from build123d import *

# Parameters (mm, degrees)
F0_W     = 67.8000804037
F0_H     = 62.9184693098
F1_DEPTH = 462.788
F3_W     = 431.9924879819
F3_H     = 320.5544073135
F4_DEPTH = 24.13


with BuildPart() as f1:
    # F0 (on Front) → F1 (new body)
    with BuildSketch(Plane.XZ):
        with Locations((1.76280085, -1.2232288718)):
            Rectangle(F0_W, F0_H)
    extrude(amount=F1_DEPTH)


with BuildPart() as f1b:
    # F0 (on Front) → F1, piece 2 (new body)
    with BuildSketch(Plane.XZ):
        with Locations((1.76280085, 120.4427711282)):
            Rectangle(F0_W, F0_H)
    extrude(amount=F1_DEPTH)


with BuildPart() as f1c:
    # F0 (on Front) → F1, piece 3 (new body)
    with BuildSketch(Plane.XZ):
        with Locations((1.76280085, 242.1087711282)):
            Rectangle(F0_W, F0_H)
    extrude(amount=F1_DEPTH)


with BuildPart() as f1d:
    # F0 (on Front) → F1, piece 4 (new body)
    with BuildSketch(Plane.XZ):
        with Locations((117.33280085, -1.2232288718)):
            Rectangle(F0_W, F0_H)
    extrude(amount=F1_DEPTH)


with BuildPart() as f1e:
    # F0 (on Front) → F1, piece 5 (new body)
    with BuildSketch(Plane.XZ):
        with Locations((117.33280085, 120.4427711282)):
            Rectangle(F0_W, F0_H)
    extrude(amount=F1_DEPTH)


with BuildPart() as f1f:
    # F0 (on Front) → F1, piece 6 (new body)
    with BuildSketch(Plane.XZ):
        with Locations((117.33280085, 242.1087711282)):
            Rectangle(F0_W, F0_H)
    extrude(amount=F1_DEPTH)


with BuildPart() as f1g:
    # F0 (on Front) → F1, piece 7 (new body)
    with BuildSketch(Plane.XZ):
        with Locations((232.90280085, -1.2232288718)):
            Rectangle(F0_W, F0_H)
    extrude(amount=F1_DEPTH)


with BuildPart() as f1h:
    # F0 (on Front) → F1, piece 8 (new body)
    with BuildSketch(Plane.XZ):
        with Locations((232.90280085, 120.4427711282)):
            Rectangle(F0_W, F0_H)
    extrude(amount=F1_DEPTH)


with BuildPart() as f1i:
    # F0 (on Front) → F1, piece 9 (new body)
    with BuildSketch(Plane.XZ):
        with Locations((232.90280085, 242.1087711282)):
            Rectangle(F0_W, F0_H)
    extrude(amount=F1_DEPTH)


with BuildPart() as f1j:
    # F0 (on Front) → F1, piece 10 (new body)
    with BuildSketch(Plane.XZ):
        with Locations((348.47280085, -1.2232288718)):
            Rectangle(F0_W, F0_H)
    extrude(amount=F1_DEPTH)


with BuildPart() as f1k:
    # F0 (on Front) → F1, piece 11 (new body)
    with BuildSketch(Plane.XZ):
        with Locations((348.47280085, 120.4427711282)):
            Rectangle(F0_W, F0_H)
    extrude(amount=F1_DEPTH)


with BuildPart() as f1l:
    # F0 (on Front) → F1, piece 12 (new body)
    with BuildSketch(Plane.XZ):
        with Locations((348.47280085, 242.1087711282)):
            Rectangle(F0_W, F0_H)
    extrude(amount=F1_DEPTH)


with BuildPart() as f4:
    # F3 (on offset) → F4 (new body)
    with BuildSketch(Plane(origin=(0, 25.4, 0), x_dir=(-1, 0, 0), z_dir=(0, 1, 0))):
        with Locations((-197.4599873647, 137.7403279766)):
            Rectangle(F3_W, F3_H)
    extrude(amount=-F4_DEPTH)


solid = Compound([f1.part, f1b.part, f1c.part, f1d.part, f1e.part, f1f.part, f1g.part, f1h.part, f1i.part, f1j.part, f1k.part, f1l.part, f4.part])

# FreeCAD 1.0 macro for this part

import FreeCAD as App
import Part
import Sketcher
from FreeCAD import Vector
Q = App.Units.Quantity


def add_polygon(sketch, points):
    """Adds a closed chain of lines whose ends are joined by coincident constraints."""
    first, n = sketch.GeometryCount, len(points)
    for a, b in zip(points, points[1:] + points[:1]):
        sketch.addGeometry(Part.LineSegment(App.Vector(*a, 0), App.Vector(*b, 0)), False)
    for i in range(n):
        sketch.addConstraint(Sketcher.Constraint("Coincident", first + i, 2, first + (i + 1) % n, 1))

doc = App.newDocument("Part")
body = doc.addObject("PartDesign::Body", "Body")

sketch1 = body.newObject("Sketcher::SketchObject", "Sketch")
sketch1.AttachmentSupport = (doc.getObject("XZ_Plane"), [""])
sketch1.MapMode = "FlatFace"
add_polygon(sketch1, [(-32.137239, 30.236006), (-32.137239, -32.682464), (35.662841, -32.682464), (35.662841, 30.236006)])
sketch1.addConstraint(Sketcher.Constraint("Vertical", 0))
sketch1.addConstraint(Sketcher.Constraint("Horizontal", 1))
sketch1.addConstraint(Sketcher.Constraint("Vertical", 2))
sketch1.addConstraint(Sketcher.Constraint("Horizontal", 3))
sketch1.addConstraint(Sketcher.Constraint("DistanceX", 1, 1, 1, 2, Q("67.80008 mm")))
sketch1.addConstraint(Sketcher.Constraint("DistanceY", 0, 2, 0, 1, Q("62.918469 mm")))
sketch1.addConstraint(Sketcher.Constraint("DistanceX", 0, 2, -1, 1, Q("32.137239 mm")))
sketch1.addConstraint(Sketcher.Constraint("DistanceY", 0, 2, -1, 1, Q("32.682464 mm")))
pad1 = body.newObject("PartDesign::Pad", "Pad")
pad1.Profile = sketch1
pad1.Length = Q("18.22 in")
body2 = doc.addObject("PartDesign::Body", "Body001")

sketch2 = body2.newObject("Sketcher::SketchObject", "Sketch001")
sketch2.AttachmentSupport = (doc.getObject("XZ_Plane001"), [""])
sketch2.MapMode = "FlatFace"
add_polygon(sketch2, [(-32.137239, 151.902006), (-32.137239, 88.983536), (35.662841, 88.983536), (35.662841, 151.902006)])
sketch2.addConstraint(Sketcher.Constraint("Vertical", 0))
sketch2.addConstraint(Sketcher.Constraint("Horizontal", 1))
sketch2.addConstraint(Sketcher.Constraint("Vertical", 2))
sketch2.addConstraint(Sketcher.Constraint("Horizontal", 3))
sketch2.addConstraint(Sketcher.Constraint("DistanceX", 1, 1, 1, 2, Q("67.80008 mm")))
sketch2.addConstraint(Sketcher.Constraint("DistanceY", 0, 2, 0, 1, Q("62.918469 mm")))
sketch2.addConstraint(Sketcher.Constraint("DistanceX", 0, 2, -1, 1, Q("32.137239 mm")))
sketch2.addConstraint(Sketcher.Constraint("DistanceY", -1, 1, 0, 2, Q("88.983536 mm")))
pad2 = body2.newObject("PartDesign::Pad", "Pad001")
pad2.Profile = sketch2
pad2.Length = Q("18.22 in")
body3 = doc.addObject("PartDesign::Body", "Body002")

sketch3 = body3.newObject("Sketcher::SketchObject", "Sketch002")
sketch3.AttachmentSupport = (doc.getObject("XZ_Plane002"), [""])
sketch3.MapMode = "FlatFace"
add_polygon(sketch3, [(-32.137239, 273.568006), (-32.137239, 210.649536), (35.662841, 210.649536), (35.662841, 273.568006)])
sketch3.addConstraint(Sketcher.Constraint("Vertical", 0))
sketch3.addConstraint(Sketcher.Constraint("Horizontal", 1))
sketch3.addConstraint(Sketcher.Constraint("Vertical", 2))
sketch3.addConstraint(Sketcher.Constraint("Horizontal", 3))
sketch3.addConstraint(Sketcher.Constraint("DistanceX", 1, 1, 1, 2, Q("67.80008 mm")))
sketch3.addConstraint(Sketcher.Constraint("DistanceY", 0, 2, 0, 1, Q("62.918469 mm")))
sketch3.addConstraint(Sketcher.Constraint("DistanceX", 0, 2, -1, 1, Q("32.137239 mm")))
sketch3.addConstraint(Sketcher.Constraint("DistanceY", -1, 1, 0, 2, Q("210.649536 mm")))
pad3 = body3.newObject("PartDesign::Pad", "Pad002")
pad3.Profile = sketch3
pad3.Length = Q("18.22 in")
body4 = doc.addObject("PartDesign::Body", "Body003")

sketch4 = body4.newObject("Sketcher::SketchObject", "Sketch003")
sketch4.AttachmentSupport = (doc.getObject("XZ_Plane003"), [""])
sketch4.MapMode = "FlatFace"
add_polygon(sketch4, [(83.432761, 30.236006), (83.432761, -32.682464), (151.232841, -32.682464), (151.232841, 30.236006)])
sketch4.addConstraint(Sketcher.Constraint("Vertical", 0))
sketch4.addConstraint(Sketcher.Constraint("Horizontal", 1))
sketch4.addConstraint(Sketcher.Constraint("Vertical", 2))
sketch4.addConstraint(Sketcher.Constraint("Horizontal", 3))
sketch4.addConstraint(Sketcher.Constraint("DistanceX", 1, 1, 1, 2, Q("67.80008 mm")))
sketch4.addConstraint(Sketcher.Constraint("DistanceY", 0, 2, 0, 1, Q("62.918469 mm")))
sketch4.addConstraint(Sketcher.Constraint("DistanceX", -1, 1, 0, 2, Q("83.432761 mm")))
sketch4.addConstraint(Sketcher.Constraint("DistanceY", 0, 2, -1, 1, Q("32.682464 mm")))
pad4 = body4.newObject("PartDesign::Pad", "Pad003")
pad4.Profile = sketch4
pad4.Length = Q("18.22 in")
body5 = doc.addObject("PartDesign::Body", "Body004")

sketch5 = body5.newObject("Sketcher::SketchObject", "Sketch004")
sketch5.AttachmentSupport = (doc.getObject("XZ_Plane004"), [""])
sketch5.MapMode = "FlatFace"
add_polygon(sketch5, [(83.432761, 151.902006), (83.432761, 88.983536), (151.232841, 88.983536), (151.232841, 151.902006)])
sketch5.addConstraint(Sketcher.Constraint("Vertical", 0))
sketch5.addConstraint(Sketcher.Constraint("Horizontal", 1))
sketch5.addConstraint(Sketcher.Constraint("Vertical", 2))
sketch5.addConstraint(Sketcher.Constraint("Horizontal", 3))
sketch5.addConstraint(Sketcher.Constraint("DistanceX", 1, 1, 1, 2, Q("67.80008 mm")))
sketch5.addConstraint(Sketcher.Constraint("DistanceY", 0, 2, 0, 1, Q("62.918469 mm")))
sketch5.addConstraint(Sketcher.Constraint("DistanceX", -1, 1, 0, 2, Q("83.432761 mm")))
sketch5.addConstraint(Sketcher.Constraint("DistanceY", -1, 1, 0, 2, Q("88.983536 mm")))
pad5 = body5.newObject("PartDesign::Pad", "Pad004")
pad5.Profile = sketch5
pad5.Length = Q("18.22 in")
body6 = doc.addObject("PartDesign::Body", "Body005")

sketch6 = body6.newObject("Sketcher::SketchObject", "Sketch005")
sketch6.AttachmentSupport = (doc.getObject("XZ_Plane005"), [""])
sketch6.MapMode = "FlatFace"
add_polygon(sketch6, [(83.432761, 273.568006), (83.432761, 210.649536), (151.232841, 210.649536), (151.232841, 273.568006)])
sketch6.addConstraint(Sketcher.Constraint("Vertical", 0))
sketch6.addConstraint(Sketcher.Constraint("Horizontal", 1))
sketch6.addConstraint(Sketcher.Constraint("Vertical", 2))
sketch6.addConstraint(Sketcher.Constraint("Horizontal", 3))
sketch6.addConstraint(Sketcher.Constraint("DistanceX", 1, 1, 1, 2, Q("67.80008 mm")))
sketch6.addConstraint(Sketcher.Constraint("DistanceY", 0, 2, 0, 1, Q("62.918469 mm")))
sketch6.addConstraint(Sketcher.Constraint("DistanceX", -1, 1, 0, 2, Q("83.432761 mm")))
sketch6.addConstraint(Sketcher.Constraint("DistanceY", -1, 1, 0, 2, Q("210.649536 mm")))
pad6 = body6.newObject("PartDesign::Pad", "Pad005")
pad6.Profile = sketch6
pad6.Length = Q("18.22 in")
body7 = doc.addObject("PartDesign::Body", "Body006")

sketch7 = body7.newObject("Sketcher::SketchObject", "Sketch006")
sketch7.AttachmentSupport = (doc.getObject("XZ_Plane006"), [""])
sketch7.MapMode = "FlatFace"
add_polygon(sketch7, [(199.002761, 30.236006), (199.002761, -32.682464), (266.802841, -32.682464), (266.802841, 30.236006)])
sketch7.addConstraint(Sketcher.Constraint("Vertical", 0))
sketch7.addConstraint(Sketcher.Constraint("Horizontal", 1))
sketch7.addConstraint(Sketcher.Constraint("Vertical", 2))
sketch7.addConstraint(Sketcher.Constraint("Horizontal", 3))
sketch7.addConstraint(Sketcher.Constraint("DistanceX", 1, 1, 1, 2, Q("67.80008 mm")))
sketch7.addConstraint(Sketcher.Constraint("DistanceY", 0, 2, 0, 1, Q("62.918469 mm")))
sketch7.addConstraint(Sketcher.Constraint("DistanceX", -1, 1, 0, 2, Q("199.002761 mm")))
sketch7.addConstraint(Sketcher.Constraint("DistanceY", 0, 2, -1, 1, Q("32.682464 mm")))
pad7 = body7.newObject("PartDesign::Pad", "Pad006")
pad7.Profile = sketch7
pad7.Length = Q("18.22 in")
body8 = doc.addObject("PartDesign::Body", "Body007")

sketch8 = body8.newObject("Sketcher::SketchObject", "Sketch007")
sketch8.AttachmentSupport = (doc.getObject("XZ_Plane007"), [""])
sketch8.MapMode = "FlatFace"
add_polygon(sketch8, [(199.002761, 151.902006), (199.002761, 88.983536), (266.802841, 88.983536), (266.802841, 151.902006)])
sketch8.addConstraint(Sketcher.Constraint("Vertical", 0))
sketch8.addConstraint(Sketcher.Constraint("Horizontal", 1))
sketch8.addConstraint(Sketcher.Constraint("Vertical", 2))
sketch8.addConstraint(Sketcher.Constraint("Horizontal", 3))
sketch8.addConstraint(Sketcher.Constraint("DistanceX", 1, 1, 1, 2, Q("67.80008 mm")))
sketch8.addConstraint(Sketcher.Constraint("DistanceY", 0, 2, 0, 1, Q("62.918469 mm")))
sketch8.addConstraint(Sketcher.Constraint("DistanceX", -1, 1, 0, 2, Q("199.002761 mm")))
sketch8.addConstraint(Sketcher.Constraint("DistanceY", -1, 1, 0, 2, Q("88.983536 mm")))
pad8 = body8.newObject("PartDesign::Pad", "Pad007")
pad8.Profile = sketch8
pad8.Length = Q("18.22 in")
body9 = doc.addObject("PartDesign::Body", "Body008")

sketch9 = body9.newObject("Sketcher::SketchObject", "Sketch008")
sketch9.AttachmentSupport = (doc.getObject("XZ_Plane008"), [""])
sketch9.MapMode = "FlatFace"
add_polygon(sketch9, [(199.002761, 273.568006), (199.002761, 210.649536), (266.802841, 210.649536), (266.802841, 273.568006)])
sketch9.addConstraint(Sketcher.Constraint("Vertical", 0))
sketch9.addConstraint(Sketcher.Constraint("Horizontal", 1))
sketch9.addConstraint(Sketcher.Constraint("Vertical", 2))
sketch9.addConstraint(Sketcher.Constraint("Horizontal", 3))
sketch9.addConstraint(Sketcher.Constraint("DistanceX", 1, 1, 1, 2, Q("67.80008 mm")))
sketch9.addConstraint(Sketcher.Constraint("DistanceY", 0, 2, 0, 1, Q("62.918469 mm")))
sketch9.addConstraint(Sketcher.Constraint("DistanceX", -1, 1, 0, 2, Q("199.002761 mm")))
sketch9.addConstraint(Sketcher.Constraint("DistanceY", -1, 1, 0, 2, Q("210.649536 mm")))
pad9 = body9.newObject("PartDesign::Pad", "Pad008")
pad9.Profile = sketch9
pad9.Length = Q("18.22 in")
body10 = doc.addObject("PartDesign::Body", "Body009")

sketch10 = body10.newObject("Sketcher::SketchObject", "Sketch009")
sketch10.AttachmentSupport = (doc.getObject("XZ_Plane009"), [""])
sketch10.MapMode = "FlatFace"
add_polygon(sketch10, [(314.572761, 30.236006), (314.572761, -32.682464), (382.372841, -32.682464), (382.372841, 30.236006)])
sketch10.addConstraint(Sketcher.Constraint("Vertical", 0))
sketch10.addConstraint(Sketcher.Constraint("Horizontal", 1))
sketch10.addConstraint(Sketcher.Constraint("Vertical", 2))
sketch10.addConstraint(Sketcher.Constraint("Horizontal", 3))
sketch10.addConstraint(Sketcher.Constraint("DistanceX", 1, 1, 1, 2, Q("67.80008 mm")))
sketch10.addConstraint(Sketcher.Constraint("DistanceY", 0, 2, 0, 1, Q("62.918469 mm")))
sketch10.addConstraint(Sketcher.Constraint("DistanceX", -1, 1, 0, 2, Q("314.572761 mm")))
sketch10.addConstraint(Sketcher.Constraint("DistanceY", 0, 2, -1, 1, Q("32.682464 mm")))
pad10 = body10.newObject("PartDesign::Pad", "Pad009")
pad10.Profile = sketch10
pad10.Length = Q("18.22 in")
body11 = doc.addObject("PartDesign::Body", "Body010")

sketch11 = body11.newObject("Sketcher::SketchObject", "Sketch010")
sketch11.AttachmentSupport = (doc.getObject("XZ_Plane010"), [""])
sketch11.MapMode = "FlatFace"
add_polygon(sketch11, [(314.572761, 151.902006), (314.572761, 88.983536), (382.372841, 88.983536), (382.372841, 151.902006)])
sketch11.addConstraint(Sketcher.Constraint("Vertical", 0))
sketch11.addConstraint(Sketcher.Constraint("Horizontal", 1))
sketch11.addConstraint(Sketcher.Constraint("Vertical", 2))
sketch11.addConstraint(Sketcher.Constraint("Horizontal", 3))
sketch11.addConstraint(Sketcher.Constraint("DistanceX", 1, 1, 1, 2, Q("67.80008 mm")))
sketch11.addConstraint(Sketcher.Constraint("DistanceY", 0, 2, 0, 1, Q("62.918469 mm")))
sketch11.addConstraint(Sketcher.Constraint("DistanceX", -1, 1, 0, 2, Q("314.572761 mm")))
sketch11.addConstraint(Sketcher.Constraint("DistanceY", -1, 1, 0, 2, Q("88.983536 mm")))
pad11 = body11.newObject("PartDesign::Pad", "Pad010")
pad11.Profile = sketch11
pad11.Length = Q("18.22 in")
body12 = doc.addObject("PartDesign::Body", "Body011")

sketch12 = body12.newObject("Sketcher::SketchObject", "Sketch011")
sketch12.AttachmentSupport = (doc.getObject("XZ_Plane011"), [""])
sketch12.MapMode = "FlatFace"
add_polygon(sketch12, [(314.572761, 273.568006), (314.572761, 210.649536), (382.372841, 210.649536), (382.372841, 273.568006)])
sketch12.addConstraint(Sketcher.Constraint("Vertical", 0))
sketch12.addConstraint(Sketcher.Constraint("Horizontal", 1))
sketch12.addConstraint(Sketcher.Constraint("Vertical", 2))
sketch12.addConstraint(Sketcher.Constraint("Horizontal", 3))
sketch12.addConstraint(Sketcher.Constraint("DistanceX", 1, 1, 1, 2, Q("67.80008 mm")))
sketch12.addConstraint(Sketcher.Constraint("DistanceY", 0, 2, 0, 1, Q("62.918469 mm")))
sketch12.addConstraint(Sketcher.Constraint("DistanceX", -1, 1, 0, 2, Q("314.572761 mm")))
sketch12.addConstraint(Sketcher.Constraint("DistanceY", -1, 1, 0, 2, Q("210.649536 mm")))
pad12 = body12.newObject("PartDesign::Pad", "Pad011")
pad12.Profile = sketch12
pad12.Length = Q("18.22 in")
body13 = doc.addObject("PartDesign::Body", "Body012")

sketch13 = body13.newObject("Sketcher::SketchObject", "Sketch012")
sketch13.AttachmentSupport = (doc.getObject("XZ_Plane012"), [""])
sketch13.MapMode = "FlatFace"
sketch13.AttachmentOffset = App.Placement(Vector(0, 0, -1 * 25.4), App.Rotation())
add_polygon(sketch13, [(413.456231, 298.017532), (413.456231, -22.536876), (-18.536257, -22.536876), (-18.536257, 298.017532)])
sketch13.addConstraint(Sketcher.Constraint("Vertical", 0))
sketch13.addConstraint(Sketcher.Constraint("Horizontal", 1))
sketch13.addConstraint(Sketcher.Constraint("Vertical", 2))
sketch13.addConstraint(Sketcher.Constraint("Horizontal", 3))
sketch13.addConstraint(Sketcher.Constraint("DistanceX", 1, 2, 1, 1, Q("431.992488 mm")))
sketch13.addConstraint(Sketcher.Constraint("DistanceY", 0, 2, 0, 1, Q("320.554407 mm")))
sketch13.addConstraint(Sketcher.Constraint("DistanceX", -1, 1, 0, 2, Q("413.456231 mm")))
sketch13.addConstraint(Sketcher.Constraint("DistanceY", -1, 1, 2, 2, Q("298.017532 mm")))
pad13 = body13.newObject("PartDesign::Pad", "Pad012")
pad13.Profile = sketch13
pad13.Length = Q("0.95 in")

doc.recompute()
